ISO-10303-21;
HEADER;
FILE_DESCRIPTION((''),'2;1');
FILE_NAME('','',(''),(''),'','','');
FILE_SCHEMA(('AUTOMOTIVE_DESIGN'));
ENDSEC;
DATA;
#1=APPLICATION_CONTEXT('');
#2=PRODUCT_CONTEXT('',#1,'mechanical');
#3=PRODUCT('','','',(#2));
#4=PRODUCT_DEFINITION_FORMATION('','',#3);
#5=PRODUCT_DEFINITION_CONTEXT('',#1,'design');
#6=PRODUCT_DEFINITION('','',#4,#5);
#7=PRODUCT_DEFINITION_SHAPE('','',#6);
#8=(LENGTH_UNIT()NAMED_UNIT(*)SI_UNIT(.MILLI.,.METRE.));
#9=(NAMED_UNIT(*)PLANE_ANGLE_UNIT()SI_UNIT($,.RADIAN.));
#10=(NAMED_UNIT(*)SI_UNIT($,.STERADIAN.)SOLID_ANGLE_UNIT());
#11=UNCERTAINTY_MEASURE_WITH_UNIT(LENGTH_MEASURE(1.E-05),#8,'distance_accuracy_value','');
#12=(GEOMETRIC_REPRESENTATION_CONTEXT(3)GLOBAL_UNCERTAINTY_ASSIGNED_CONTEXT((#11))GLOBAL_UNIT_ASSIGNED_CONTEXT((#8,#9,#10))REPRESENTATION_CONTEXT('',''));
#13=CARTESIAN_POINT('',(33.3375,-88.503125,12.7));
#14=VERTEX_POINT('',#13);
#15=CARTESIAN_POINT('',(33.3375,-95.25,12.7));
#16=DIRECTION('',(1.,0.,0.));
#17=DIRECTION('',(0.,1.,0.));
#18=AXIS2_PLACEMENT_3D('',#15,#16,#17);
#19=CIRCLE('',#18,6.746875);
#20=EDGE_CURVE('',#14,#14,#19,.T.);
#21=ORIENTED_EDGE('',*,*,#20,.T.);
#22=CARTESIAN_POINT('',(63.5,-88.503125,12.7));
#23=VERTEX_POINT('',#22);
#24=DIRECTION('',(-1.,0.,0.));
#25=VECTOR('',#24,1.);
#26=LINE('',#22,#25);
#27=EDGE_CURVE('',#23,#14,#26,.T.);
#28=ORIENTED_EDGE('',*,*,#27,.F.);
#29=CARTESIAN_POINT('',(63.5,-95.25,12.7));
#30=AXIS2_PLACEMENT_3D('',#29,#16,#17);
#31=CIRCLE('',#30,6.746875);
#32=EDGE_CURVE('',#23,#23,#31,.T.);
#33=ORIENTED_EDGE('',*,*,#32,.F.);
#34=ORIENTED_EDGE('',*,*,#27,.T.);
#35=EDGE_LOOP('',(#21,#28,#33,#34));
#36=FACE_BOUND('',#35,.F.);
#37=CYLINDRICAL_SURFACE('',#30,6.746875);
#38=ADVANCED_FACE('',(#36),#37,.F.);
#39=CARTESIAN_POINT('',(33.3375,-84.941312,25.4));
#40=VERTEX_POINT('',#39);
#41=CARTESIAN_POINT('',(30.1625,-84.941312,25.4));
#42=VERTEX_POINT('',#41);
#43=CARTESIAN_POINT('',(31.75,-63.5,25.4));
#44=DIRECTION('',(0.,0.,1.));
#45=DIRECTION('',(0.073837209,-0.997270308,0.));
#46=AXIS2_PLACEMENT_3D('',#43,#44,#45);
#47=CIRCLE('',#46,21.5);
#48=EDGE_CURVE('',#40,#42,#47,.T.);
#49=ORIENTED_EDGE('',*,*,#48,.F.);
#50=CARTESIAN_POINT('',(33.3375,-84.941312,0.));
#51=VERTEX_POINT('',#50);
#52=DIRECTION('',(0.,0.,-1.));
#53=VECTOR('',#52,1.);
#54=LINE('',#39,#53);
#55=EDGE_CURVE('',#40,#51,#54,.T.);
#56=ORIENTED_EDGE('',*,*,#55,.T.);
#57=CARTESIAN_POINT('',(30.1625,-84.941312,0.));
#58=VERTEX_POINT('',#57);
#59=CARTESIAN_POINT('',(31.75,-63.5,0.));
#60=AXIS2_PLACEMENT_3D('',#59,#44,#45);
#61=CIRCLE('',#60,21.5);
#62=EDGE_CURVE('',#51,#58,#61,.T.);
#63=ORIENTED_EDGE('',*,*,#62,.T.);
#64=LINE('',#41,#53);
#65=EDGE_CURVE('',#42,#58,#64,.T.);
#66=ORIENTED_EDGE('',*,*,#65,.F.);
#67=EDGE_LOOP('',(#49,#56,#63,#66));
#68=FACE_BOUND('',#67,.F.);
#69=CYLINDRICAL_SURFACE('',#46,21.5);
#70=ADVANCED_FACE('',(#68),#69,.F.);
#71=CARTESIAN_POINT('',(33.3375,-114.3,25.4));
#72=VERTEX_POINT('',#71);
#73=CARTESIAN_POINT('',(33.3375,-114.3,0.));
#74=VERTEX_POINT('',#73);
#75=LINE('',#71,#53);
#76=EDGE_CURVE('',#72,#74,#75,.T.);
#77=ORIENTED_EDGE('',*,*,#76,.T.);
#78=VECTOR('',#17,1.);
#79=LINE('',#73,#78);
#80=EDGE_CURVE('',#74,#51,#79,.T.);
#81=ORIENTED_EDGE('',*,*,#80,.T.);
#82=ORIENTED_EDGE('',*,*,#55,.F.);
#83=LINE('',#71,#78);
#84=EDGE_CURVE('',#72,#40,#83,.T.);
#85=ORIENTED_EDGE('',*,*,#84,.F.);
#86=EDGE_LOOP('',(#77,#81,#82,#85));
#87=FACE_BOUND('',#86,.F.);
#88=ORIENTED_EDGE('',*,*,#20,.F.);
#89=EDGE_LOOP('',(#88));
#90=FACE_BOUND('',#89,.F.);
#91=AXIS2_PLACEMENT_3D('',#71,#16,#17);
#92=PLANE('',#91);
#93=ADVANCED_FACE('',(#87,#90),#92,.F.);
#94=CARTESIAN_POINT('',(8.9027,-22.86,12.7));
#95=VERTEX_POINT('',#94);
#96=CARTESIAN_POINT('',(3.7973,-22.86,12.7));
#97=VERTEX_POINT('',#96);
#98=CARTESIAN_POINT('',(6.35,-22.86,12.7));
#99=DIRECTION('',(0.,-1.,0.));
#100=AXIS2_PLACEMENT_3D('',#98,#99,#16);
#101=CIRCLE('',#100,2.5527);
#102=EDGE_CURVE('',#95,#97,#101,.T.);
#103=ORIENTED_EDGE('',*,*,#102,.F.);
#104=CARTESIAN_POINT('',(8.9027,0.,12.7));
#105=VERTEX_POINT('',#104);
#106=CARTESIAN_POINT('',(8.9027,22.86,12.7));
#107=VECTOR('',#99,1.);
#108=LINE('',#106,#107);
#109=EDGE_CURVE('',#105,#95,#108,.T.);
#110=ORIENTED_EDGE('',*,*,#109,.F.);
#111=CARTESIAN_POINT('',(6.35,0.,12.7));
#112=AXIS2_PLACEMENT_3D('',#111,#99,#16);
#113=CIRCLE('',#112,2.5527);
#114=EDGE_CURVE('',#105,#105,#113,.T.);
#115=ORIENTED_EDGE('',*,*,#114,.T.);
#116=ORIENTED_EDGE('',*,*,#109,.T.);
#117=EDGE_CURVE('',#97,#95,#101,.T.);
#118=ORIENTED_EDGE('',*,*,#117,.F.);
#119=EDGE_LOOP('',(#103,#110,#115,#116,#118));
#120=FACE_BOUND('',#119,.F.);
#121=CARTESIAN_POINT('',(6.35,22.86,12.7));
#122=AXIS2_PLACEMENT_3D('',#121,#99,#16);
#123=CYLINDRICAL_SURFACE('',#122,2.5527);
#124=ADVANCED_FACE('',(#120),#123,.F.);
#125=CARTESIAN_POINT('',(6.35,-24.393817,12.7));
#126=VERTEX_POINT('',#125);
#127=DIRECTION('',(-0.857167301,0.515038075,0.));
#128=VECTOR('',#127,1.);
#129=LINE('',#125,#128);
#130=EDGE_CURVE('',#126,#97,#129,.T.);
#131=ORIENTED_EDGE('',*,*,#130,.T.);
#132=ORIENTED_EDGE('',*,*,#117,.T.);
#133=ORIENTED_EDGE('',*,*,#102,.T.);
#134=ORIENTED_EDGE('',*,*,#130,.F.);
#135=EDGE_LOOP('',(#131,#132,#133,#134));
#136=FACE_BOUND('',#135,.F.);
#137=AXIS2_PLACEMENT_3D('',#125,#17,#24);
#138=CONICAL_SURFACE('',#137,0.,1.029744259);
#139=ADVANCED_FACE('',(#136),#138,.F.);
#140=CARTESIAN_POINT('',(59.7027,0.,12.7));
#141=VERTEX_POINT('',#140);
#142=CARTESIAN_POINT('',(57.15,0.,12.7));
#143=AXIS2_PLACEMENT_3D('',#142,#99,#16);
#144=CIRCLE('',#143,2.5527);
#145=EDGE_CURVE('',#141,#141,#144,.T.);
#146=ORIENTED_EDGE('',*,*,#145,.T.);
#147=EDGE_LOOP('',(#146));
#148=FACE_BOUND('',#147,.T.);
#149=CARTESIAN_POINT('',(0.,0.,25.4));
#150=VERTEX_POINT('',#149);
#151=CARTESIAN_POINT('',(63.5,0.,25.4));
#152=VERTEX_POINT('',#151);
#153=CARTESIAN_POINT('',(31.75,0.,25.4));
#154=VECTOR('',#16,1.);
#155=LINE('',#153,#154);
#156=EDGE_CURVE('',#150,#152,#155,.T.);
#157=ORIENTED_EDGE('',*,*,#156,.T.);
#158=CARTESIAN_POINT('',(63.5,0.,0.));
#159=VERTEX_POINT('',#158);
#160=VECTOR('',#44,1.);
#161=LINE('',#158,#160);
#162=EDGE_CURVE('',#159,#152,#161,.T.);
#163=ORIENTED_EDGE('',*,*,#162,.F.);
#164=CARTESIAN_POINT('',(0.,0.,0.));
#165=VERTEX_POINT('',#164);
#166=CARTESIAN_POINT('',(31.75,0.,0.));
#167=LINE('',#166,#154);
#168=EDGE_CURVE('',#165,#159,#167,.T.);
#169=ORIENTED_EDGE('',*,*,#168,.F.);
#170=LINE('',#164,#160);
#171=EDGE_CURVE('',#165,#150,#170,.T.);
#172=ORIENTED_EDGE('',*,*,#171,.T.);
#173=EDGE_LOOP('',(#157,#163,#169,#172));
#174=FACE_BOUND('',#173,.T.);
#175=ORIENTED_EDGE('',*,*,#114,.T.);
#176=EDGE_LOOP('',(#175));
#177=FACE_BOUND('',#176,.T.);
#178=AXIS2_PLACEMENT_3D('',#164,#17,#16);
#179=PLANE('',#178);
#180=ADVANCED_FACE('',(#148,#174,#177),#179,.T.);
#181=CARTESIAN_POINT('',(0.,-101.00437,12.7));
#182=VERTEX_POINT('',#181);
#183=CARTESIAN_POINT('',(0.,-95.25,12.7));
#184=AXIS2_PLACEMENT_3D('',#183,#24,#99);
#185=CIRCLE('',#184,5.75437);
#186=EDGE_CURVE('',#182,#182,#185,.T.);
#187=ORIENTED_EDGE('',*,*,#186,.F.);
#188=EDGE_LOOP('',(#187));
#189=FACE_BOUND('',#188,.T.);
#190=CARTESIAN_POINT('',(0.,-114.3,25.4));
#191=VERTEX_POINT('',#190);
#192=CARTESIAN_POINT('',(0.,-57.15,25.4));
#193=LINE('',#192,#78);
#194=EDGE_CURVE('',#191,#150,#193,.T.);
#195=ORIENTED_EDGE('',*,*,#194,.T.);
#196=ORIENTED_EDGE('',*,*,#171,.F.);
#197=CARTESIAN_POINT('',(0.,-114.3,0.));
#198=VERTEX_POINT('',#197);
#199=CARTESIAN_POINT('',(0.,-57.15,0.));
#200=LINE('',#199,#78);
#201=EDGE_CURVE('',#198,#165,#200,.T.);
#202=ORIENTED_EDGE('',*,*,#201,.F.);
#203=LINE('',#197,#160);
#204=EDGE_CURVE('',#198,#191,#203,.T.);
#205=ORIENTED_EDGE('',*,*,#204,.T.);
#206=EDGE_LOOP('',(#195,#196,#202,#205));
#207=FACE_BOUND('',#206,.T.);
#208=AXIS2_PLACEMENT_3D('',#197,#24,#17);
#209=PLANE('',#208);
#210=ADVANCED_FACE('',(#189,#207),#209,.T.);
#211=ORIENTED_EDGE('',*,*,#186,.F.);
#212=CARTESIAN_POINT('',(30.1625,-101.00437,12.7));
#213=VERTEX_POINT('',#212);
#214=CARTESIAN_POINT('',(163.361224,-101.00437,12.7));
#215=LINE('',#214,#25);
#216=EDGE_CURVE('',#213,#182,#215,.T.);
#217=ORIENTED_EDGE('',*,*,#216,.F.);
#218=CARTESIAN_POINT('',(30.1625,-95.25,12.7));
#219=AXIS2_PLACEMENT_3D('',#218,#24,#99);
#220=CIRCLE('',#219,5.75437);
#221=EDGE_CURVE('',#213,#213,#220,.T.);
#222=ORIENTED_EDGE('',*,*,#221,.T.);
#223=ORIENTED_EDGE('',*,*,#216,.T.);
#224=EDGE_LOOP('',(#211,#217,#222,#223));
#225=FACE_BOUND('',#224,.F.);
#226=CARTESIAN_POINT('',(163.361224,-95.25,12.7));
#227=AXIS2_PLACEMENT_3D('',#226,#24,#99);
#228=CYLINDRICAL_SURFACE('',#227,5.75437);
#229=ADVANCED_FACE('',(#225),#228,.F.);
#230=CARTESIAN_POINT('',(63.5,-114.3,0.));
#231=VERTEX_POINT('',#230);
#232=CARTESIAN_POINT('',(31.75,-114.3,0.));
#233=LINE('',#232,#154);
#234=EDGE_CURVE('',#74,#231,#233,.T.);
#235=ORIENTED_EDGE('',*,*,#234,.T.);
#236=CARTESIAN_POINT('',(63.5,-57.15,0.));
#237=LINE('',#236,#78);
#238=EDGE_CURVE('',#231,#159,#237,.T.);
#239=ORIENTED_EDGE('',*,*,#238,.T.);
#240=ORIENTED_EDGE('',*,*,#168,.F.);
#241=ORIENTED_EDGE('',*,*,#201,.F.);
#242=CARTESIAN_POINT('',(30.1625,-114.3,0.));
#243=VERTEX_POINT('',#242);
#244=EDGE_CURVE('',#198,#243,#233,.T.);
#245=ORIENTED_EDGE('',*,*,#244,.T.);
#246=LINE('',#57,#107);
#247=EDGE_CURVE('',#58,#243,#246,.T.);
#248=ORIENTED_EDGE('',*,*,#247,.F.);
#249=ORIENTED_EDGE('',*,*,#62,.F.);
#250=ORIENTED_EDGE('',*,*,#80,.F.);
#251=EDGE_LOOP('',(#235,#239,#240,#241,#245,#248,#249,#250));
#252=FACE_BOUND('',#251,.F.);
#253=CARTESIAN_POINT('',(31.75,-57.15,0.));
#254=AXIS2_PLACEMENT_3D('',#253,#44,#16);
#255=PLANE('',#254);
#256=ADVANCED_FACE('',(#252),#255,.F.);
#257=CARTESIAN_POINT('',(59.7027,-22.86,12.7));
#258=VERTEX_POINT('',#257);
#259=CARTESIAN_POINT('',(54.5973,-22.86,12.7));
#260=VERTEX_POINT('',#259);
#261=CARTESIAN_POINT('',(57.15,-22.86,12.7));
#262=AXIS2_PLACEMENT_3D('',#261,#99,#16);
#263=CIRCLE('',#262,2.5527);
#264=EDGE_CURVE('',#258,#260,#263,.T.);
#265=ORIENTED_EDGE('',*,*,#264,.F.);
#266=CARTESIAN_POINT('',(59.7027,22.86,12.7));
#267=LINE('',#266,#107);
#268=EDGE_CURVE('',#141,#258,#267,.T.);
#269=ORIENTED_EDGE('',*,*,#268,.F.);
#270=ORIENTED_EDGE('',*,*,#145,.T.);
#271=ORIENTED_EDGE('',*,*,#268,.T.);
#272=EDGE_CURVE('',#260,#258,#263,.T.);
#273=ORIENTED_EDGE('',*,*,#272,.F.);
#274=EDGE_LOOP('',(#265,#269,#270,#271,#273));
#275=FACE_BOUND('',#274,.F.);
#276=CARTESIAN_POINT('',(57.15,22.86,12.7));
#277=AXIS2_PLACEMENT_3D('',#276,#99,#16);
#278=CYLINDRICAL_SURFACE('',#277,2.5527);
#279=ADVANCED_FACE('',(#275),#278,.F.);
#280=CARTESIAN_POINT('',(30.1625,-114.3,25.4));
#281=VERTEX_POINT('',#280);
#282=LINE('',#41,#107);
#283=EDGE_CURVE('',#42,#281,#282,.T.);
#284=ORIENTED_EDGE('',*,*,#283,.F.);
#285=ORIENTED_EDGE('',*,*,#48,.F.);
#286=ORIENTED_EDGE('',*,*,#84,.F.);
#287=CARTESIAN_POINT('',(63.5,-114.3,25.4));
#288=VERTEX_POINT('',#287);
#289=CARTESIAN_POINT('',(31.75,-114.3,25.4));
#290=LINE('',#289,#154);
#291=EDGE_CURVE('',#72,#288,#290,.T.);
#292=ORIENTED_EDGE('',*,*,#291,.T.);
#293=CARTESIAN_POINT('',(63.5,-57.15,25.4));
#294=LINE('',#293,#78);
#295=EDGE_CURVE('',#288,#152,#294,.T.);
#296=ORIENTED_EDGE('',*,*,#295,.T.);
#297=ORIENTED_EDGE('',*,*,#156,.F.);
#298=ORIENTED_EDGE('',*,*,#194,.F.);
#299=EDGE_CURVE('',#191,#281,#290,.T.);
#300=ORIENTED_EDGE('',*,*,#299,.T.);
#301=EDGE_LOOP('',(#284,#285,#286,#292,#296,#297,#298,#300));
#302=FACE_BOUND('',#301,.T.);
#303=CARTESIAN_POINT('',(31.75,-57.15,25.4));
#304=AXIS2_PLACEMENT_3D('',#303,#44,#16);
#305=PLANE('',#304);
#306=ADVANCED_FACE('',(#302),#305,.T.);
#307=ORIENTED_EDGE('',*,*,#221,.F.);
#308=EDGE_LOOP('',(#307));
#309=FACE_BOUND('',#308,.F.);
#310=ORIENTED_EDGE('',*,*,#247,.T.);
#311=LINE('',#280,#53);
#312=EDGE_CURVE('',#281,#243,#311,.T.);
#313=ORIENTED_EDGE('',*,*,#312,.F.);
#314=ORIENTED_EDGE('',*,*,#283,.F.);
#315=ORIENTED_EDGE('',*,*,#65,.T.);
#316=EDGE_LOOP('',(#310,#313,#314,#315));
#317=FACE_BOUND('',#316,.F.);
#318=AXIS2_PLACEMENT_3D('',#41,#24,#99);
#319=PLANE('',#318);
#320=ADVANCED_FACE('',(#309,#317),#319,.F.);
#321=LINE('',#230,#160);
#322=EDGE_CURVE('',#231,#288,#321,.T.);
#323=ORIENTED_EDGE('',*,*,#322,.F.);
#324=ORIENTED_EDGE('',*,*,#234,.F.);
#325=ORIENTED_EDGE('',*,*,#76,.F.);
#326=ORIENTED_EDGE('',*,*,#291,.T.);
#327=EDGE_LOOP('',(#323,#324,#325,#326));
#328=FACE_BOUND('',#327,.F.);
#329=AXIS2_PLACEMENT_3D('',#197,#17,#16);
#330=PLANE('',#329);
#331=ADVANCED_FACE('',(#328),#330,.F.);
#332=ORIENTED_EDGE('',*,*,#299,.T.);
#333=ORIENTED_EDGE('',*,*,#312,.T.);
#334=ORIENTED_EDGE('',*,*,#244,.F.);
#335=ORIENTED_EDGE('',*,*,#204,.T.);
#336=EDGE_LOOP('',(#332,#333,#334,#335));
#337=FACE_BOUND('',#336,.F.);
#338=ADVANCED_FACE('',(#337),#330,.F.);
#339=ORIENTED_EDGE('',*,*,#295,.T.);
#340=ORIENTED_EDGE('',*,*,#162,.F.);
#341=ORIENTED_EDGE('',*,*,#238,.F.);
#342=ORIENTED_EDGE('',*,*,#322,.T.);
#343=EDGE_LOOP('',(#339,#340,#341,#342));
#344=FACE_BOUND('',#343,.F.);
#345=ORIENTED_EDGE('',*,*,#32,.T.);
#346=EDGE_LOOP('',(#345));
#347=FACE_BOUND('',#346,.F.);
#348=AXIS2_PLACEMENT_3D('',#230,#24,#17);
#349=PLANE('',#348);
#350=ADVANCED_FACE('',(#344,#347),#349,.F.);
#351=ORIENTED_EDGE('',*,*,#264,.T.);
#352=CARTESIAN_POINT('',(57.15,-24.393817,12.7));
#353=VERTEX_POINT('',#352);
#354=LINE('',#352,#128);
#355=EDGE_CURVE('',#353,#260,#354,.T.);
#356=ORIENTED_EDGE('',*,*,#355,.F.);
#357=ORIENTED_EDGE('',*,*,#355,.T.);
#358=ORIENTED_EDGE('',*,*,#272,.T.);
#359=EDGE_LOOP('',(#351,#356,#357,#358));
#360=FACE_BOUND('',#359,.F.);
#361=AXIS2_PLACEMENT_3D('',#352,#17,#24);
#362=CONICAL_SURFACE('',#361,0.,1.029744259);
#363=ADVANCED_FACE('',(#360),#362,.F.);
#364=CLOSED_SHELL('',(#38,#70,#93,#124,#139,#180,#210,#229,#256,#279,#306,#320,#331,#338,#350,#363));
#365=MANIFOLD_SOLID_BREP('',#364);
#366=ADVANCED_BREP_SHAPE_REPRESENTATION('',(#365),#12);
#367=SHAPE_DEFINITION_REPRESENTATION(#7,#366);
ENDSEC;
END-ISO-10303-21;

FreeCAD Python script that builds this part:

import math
import FreeCAD as App
import Part
import Sketcher
Q = App.Units.Quantity

doc = App.newDocument("Part")
body = doc.addObject("PartDesign::Body", "Body")

sketch1 = doc.addObject("Sketcher::SketchObject", "Sketch")
body.addObject(sketch1)
sketch1.AttachmentSupport = (doc.XY_Plane, [""])
sketch1.MapMode = "FlatFace"
sketch1.addGeometry([
    Part.LineSegment(App.Vector(0, 0, 0), App.Vector(0, -114, 0)),
    Part.LineSegment(App.Vector(0, -114, 0), App.Vector(64, -114, 0)),
    Part.LineSegment(App.Vector(64, -114, 0), App.Vector(64, 0, 0)),
    Part.LineSegment(App.Vector(64, 0, 0), App.Vector(0, 0, 0)),
], False)
sketch1.addConstraint([
    Sketcher.Constraint("Coincident", 0, 2, 1, 1),
    Sketcher.Constraint("Coincident", 1, 2, 2, 1),
    Sketcher.Constraint("Coincident", 2, 2, 3, 1),
    Sketcher.Constraint("Coincident", 3, 2, 0, 1),
    Sketcher.Constraint("Vertical", 0),
    Sketcher.Constraint("Horizontal", 1),
    Sketcher.Constraint("Vertical", 2),
    Sketcher.Constraint("Horizontal", 3),
    Sketcher.Constraint("Coincident", 3, 2, -1, 1),
    Sketcher.Constraint("DistanceX", 1, 1, 1, 2, Q("2.5 in")),
    Sketcher.Constraint("DistanceY", 0, 2, 0, 1, Q("4.5 in")),
])
pad1 = doc.addObject("PartDesign::Pad", "Pad")
body.addObject(pad1)
pad1.Profile = sketch1
pad1.Length = Q("1 in")

sketch2 = doc.addObject("Sketcher::SketchObject", "Sketch001")
body.addObject(sketch2)
sketch2.AttachmentSupport = (doc.XZ_Plane, [""])
sketch2.MapMode = "FlatFace"
sketch2.addGeometry([
    Part.Circle(App.Vector(57.1, 12.7, 0), App.Vector(0, 0, 1), 2.6),
    Part.Circle(App.Vector(6.3, 12.7, 0), App.Vector(0, 0, 1), 2.6),
], False)
sketch2.addConstraint([
    Sketcher.Constraint("Equal", 0, 1),
    Sketcher.Constraint("Horizontal", 0, 3, 1, 3),
    Sketcher.Constraint("Diameter", 0, Q("0.201 in")),
    Sketcher.Constraint("DistanceX", 1, 3, 0, 3, Q("2 in")),
    Sketcher.Constraint("DistanceY", -1, 1, 0, 3, Q("0.5 in")),
    Sketcher.Constraint("DistanceX", -1, 1, 0, 3, Q("2.25 in")),
])
doc.recompute()
hole = doc.addObject("PartDesign::Hole", "Hole")
body.addObject(hole)
hole.Profile = sketch2
hole.ThreadType = "None"
hole.Diameter = Q("0.201 in")
hole.DepthType = "Dimension"
hole.Depth = Q("0.9 in")
hole.DrillPoint = "Angled"
hole.DrillPointAngle = 118
hole.Reversed = True

sketch3 = doc.addObject("Sketcher::SketchObject", "Sketch002")
body.addObject(sketch3)
sketch3.AttachmentSupport = (doc.XY_Plane, [""])
sketch3.MapMode = "FlatFace"
sketch3.AttachmentOffset = App.Placement(App.Vector(0, 0, 1 * 25.4), App.Rotation())
sketch3.addGeometry([
    Part.LineSegment(App.Vector(33.3, -114.3, 0), App.Vector(33.3, -84.9, 0)),
    Part.ArcOfCircle(Part.Circle(App.Vector(31.8, -63.5, 0), App.Vector(0, 0, 1), 21.5), math.radians(-86), math.radians(266)),
    Part.LineSegment(App.Vector(30.2, -84.9, 0), App.Vector(30.2, -114.3, 0)),
    Part.LineSegment(App.Vector(30.2, -114.3, 0), App.Vector(33.3, -114.3, 0)),
], False)
sketch3.addConstraint([
    Sketcher.Constraint("Coincident", 0, 2, 1, 1),
    Sketcher.Constraint("Coincident", 1, 2, 2, 1),
    Sketcher.Constraint("Coincident", 2, 2, 3, 1),
    Sketcher.Constraint("Coincident", 3, 2, 0, 1),
    Sketcher.Constraint("Vertical", 0),
    Sketcher.Constraint("Vertical", 2),
    Sketcher.Constraint("Horizontal", 3),
    Sketcher.Constraint("Horizontal", 0, 2, 1, 2),
    Sketcher.Constraint("DistanceY", 2, 2, 1, 3, Q("2 in")),
    Sketcher.Constraint("DistanceY", 1, 3, -1, 1, Q("2.5 in")),
    Sketcher.Constraint("DistanceX", 3, 1, 3, 2, Q("0.125 in")),
    Sketcher.Constraint("DistanceX", -1, 1, 1, 3, Q("1.25 in")),
    Sketcher.Constraint("Radius", 1, 21.5),
])
pocket1 = doc.addObject("PartDesign::Pocket", "Pocket")
body.addObject(pocket1)
pocket1.Profile = sketch3
pocket1.Type = "ThroughAll"

sketch4 = doc.addObject("Sketcher::SketchObject", "Sketch003")
body.addObject(sketch4)
sketch4.AttachmentSupport = (doc.YZ_Plane, [""])
sketch4.MapMode = "FlatFace"
sketch4.AttachmentOffset = App.Placement(App.Vector(0, 0, 2.5 * 25.4), App.Rotation())
sketch4.addGeometry(Part.Circle(App.Vector(-95, 13, 0), App.Vector(0, 0, 1), 7), False)
sketch4.addConstraint([
    Sketcher.Constraint("Diameter", 0, Q("0.53125 in")),
    Sketcher.Constraint("DistanceY", -1, 1, 0, 3, Q("0.5 in")),
    Sketcher.Constraint("DistanceX", 0, 3, -1, 1, Q("3.75 in")),
])
pocket2 = doc.addObject("PartDesign::Pocket", "Pocket001")
body.addObject(pocket2)
pocket2.Profile = sketch4
pocket2.Length = Q("1.1875 in")

sketch5 = doc.addObject("Sketcher::SketchObject", "Sketch004")
body.addObject(sketch5)
sketch5.AttachmentSupport = (doc.YZ_Plane, [""])
sketch5.MapMode = "FlatFace"
sketch5.AttachmentOffset = App.Placement(App.Vector(0, 0, 1.1875 * 25.4), App.Rotation())
sketch5.addGeometry(Part.Circle(App.Vector(-95, 13, 0), App.Vector(0, 0, 1), 6), False)
sketch5.addConstraint([
    Sketcher.Constraint("Diameter", 0, Q("0.4531 in")),
    Sketcher.Constraint("DistanceY", -1, 1, 0, 3, Q("0.5 in")),
    Sketcher.Constraint("DistanceX", 0, 3, -1, 1, Q("3.75 in")),
])
doc.recompute()
hole2 = doc.addObject("PartDesign::Hole", "Hole001")
body.addObject(hole2)
hole2.Profile = sketch5
hole2.ThreadType = "None"
hole2.Diameter = Q("0.4531 in")
hole2.DepthType = "ThroughAll"

doc.recompute()
